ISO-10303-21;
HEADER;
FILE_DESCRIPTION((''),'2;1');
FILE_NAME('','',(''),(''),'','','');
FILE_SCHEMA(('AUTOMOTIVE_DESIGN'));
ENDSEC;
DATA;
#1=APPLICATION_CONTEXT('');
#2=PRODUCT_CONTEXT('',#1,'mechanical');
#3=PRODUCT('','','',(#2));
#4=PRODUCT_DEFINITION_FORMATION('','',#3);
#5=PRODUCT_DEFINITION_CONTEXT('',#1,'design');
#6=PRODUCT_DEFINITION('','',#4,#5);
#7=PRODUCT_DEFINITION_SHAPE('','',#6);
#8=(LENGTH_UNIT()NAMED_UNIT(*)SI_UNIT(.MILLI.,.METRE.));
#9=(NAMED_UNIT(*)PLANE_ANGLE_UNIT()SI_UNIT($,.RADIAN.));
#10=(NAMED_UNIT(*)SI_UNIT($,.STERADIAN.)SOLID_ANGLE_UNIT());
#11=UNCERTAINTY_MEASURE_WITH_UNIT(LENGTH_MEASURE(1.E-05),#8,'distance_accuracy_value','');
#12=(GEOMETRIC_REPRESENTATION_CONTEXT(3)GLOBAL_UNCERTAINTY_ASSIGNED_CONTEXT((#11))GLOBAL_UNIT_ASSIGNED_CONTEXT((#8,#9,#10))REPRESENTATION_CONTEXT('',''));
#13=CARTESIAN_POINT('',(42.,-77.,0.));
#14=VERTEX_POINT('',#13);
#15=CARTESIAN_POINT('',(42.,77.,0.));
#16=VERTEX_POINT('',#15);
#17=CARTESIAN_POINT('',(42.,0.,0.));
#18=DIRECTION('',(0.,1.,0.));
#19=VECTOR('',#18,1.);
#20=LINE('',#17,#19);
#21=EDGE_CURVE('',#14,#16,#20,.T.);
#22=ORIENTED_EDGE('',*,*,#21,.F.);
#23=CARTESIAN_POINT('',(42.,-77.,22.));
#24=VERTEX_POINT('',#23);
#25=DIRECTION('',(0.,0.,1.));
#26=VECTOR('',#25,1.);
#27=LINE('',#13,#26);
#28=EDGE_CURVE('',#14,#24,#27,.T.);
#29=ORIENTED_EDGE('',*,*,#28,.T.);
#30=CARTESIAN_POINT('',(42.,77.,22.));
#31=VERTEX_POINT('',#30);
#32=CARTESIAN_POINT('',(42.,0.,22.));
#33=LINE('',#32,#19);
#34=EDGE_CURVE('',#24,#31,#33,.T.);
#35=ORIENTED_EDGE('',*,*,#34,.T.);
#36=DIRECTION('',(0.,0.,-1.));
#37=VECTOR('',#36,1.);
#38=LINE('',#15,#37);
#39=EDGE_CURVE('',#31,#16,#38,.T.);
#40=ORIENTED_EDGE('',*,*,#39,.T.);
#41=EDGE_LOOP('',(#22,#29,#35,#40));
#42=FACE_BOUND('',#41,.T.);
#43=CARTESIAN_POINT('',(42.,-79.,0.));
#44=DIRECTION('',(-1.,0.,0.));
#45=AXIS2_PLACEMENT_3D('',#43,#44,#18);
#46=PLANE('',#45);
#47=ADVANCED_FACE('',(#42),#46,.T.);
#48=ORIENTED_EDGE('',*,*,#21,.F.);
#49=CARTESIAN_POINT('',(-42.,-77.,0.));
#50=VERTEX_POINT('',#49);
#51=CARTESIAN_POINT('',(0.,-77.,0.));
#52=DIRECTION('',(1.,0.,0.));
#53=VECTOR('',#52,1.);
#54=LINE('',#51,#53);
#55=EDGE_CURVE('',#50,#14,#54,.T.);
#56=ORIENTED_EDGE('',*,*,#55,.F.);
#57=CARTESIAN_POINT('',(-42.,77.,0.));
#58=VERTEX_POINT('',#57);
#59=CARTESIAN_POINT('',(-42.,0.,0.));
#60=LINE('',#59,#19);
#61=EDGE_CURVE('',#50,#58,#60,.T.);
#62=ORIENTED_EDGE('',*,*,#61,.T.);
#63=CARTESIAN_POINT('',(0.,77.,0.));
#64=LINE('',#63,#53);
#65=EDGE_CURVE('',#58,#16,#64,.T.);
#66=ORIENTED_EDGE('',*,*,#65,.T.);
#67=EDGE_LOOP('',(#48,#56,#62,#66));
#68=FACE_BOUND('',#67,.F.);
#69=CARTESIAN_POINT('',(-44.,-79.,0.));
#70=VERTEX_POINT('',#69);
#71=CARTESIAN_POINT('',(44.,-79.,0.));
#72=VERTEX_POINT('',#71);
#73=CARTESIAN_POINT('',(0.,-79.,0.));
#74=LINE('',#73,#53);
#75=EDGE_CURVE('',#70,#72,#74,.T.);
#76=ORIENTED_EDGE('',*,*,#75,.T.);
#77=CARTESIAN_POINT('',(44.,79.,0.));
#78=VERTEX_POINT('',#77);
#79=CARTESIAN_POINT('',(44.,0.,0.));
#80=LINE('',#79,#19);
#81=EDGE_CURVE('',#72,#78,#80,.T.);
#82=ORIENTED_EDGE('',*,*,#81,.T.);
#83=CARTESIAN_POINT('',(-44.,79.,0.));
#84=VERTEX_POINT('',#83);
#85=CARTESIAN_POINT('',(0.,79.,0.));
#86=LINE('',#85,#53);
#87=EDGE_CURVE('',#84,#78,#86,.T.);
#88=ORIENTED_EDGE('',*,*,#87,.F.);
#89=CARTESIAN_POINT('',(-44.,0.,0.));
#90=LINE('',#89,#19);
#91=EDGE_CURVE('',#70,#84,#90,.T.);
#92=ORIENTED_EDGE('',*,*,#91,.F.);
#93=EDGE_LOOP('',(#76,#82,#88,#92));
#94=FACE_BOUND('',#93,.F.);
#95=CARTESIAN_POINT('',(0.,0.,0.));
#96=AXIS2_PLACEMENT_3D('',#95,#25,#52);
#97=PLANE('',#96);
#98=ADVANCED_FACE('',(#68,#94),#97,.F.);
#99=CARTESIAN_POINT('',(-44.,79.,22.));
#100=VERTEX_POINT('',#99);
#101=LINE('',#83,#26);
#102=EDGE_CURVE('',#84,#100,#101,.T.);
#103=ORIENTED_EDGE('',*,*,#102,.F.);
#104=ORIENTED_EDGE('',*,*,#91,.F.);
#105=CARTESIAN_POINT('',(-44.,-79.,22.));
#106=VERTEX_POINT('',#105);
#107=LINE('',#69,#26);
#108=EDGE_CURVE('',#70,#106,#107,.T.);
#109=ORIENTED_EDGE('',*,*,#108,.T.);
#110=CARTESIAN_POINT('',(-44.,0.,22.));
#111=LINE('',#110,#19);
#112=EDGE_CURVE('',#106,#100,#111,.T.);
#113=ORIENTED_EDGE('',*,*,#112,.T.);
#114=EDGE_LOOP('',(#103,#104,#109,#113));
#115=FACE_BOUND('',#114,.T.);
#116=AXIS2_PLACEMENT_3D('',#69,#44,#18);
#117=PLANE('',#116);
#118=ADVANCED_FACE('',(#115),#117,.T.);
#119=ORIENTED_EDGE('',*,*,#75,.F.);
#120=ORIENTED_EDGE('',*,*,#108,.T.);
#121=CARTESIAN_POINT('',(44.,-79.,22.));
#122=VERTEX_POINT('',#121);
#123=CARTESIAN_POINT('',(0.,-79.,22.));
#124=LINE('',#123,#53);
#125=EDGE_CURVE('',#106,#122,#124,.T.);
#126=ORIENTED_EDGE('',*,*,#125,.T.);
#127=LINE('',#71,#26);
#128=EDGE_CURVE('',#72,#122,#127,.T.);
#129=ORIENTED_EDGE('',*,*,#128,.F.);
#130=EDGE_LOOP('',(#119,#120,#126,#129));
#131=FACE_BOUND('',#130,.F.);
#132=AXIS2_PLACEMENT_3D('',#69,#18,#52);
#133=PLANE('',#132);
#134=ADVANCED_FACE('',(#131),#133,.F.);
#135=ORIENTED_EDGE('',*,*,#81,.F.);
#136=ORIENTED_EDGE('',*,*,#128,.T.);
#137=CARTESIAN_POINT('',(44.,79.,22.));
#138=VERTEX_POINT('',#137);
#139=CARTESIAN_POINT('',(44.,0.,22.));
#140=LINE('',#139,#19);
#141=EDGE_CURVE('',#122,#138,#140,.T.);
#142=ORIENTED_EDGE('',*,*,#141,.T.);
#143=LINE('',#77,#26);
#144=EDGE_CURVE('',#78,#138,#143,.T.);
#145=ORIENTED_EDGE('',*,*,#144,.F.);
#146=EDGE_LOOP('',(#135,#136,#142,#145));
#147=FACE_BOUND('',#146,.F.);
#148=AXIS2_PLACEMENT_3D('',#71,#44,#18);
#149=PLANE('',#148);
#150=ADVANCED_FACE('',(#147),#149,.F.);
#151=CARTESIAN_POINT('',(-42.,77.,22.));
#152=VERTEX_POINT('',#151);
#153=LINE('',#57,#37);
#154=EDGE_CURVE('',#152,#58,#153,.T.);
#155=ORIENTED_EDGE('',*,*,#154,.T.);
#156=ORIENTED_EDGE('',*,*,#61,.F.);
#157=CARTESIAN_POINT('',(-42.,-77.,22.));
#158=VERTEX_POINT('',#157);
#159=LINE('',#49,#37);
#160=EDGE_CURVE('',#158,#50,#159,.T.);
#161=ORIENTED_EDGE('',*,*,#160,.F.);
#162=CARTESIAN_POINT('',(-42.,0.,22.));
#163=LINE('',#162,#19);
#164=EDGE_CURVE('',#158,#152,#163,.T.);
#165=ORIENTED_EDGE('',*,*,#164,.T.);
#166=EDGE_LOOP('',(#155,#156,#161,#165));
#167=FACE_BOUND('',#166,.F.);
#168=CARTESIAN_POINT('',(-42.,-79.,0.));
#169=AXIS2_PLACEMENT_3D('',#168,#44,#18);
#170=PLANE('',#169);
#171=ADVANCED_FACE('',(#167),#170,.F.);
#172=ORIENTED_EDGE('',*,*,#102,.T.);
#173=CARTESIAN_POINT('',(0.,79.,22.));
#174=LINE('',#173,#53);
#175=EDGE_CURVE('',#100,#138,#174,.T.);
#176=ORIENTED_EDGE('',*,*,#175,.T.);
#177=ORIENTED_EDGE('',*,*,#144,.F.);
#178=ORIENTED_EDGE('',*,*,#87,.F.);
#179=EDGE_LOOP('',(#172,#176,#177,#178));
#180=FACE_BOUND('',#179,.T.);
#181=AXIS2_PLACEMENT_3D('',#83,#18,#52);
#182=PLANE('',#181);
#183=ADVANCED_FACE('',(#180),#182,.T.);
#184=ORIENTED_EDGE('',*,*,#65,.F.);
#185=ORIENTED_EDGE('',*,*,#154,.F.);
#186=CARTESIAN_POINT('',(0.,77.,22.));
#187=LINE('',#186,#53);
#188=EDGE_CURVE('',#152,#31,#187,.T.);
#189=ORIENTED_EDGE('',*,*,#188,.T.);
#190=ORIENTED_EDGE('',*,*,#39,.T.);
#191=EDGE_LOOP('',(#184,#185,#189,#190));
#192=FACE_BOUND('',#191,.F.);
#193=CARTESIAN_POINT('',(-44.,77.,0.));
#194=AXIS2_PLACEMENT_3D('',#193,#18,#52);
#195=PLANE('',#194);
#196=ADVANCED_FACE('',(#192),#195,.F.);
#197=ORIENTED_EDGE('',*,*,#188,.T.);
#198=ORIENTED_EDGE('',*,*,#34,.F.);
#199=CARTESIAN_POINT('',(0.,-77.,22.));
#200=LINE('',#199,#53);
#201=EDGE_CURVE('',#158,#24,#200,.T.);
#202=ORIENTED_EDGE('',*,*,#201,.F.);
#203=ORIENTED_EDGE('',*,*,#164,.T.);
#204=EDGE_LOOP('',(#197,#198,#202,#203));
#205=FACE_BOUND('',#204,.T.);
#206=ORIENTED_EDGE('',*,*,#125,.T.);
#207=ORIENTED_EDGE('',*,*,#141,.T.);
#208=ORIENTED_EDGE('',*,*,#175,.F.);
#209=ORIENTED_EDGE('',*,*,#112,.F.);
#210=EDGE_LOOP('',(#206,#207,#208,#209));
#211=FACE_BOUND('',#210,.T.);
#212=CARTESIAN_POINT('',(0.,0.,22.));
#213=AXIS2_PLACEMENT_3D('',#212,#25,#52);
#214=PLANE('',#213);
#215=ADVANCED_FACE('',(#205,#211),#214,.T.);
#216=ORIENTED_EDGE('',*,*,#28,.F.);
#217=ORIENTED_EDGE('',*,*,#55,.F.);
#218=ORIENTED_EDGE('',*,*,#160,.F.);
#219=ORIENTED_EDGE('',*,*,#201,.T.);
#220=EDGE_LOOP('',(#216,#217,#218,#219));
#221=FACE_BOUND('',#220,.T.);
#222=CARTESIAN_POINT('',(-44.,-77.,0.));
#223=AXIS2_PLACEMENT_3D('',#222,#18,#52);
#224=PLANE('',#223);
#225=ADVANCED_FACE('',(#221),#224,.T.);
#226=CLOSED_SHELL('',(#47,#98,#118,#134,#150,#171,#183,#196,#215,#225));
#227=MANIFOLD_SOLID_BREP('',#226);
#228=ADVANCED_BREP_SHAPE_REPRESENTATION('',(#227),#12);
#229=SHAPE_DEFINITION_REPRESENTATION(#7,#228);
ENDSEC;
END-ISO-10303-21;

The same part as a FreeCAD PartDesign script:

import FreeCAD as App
import Part
import Sketcher

V = App.Vector
Q = App.Units.Quantity


def faces_at(feature, points):
    """Names of the faces that lie closest to the given points."""
    faces = feature.Shape.Faces
    near = lambda p: min(range(len(faces)), key=lambda i: faces[i].distToShape(Part.Vertex(*p))[0])
    return sorted({f"Face{near(p) + 1}" for p in points})

doc = App.newDocument("Part")
body = doc.addObject("PartDesign::Body", "Body")

# Sketch on XY plane
sketch1 = body.newObject("Sketcher::SketchObject", "Sketch")
sketch1.AttachmentSupport = (doc.getObject("XY_Plane"), [""])
sketch1.MapMode = "FlatFace"
sketch1.addGeometry(Part.LineSegment(V(-44, 79, 0), V(-44, -79, 0)), False)
sketch1.addGeometry(Part.LineSegment(V(-44, -79, 0), V(44, -79, 0)), False)
sketch1.addGeometry(Part.LineSegment(V(44, -79, 0), V(44, 79, 0)), False)
sketch1.addGeometry(Part.LineSegment(V(44, 79, 0), V(-44, 79, 0)), False)
sketch1.addConstraint(Sketcher.Constraint("Coincident", 0, 2, 1, 1))
sketch1.addConstraint(Sketcher.Constraint("Coincident", 1, 2, 2, 1))
sketch1.addConstraint(Sketcher.Constraint("Coincident", 2, 2, 3, 1))
sketch1.addConstraint(Sketcher.Constraint("Coincident", 3, 2, 0, 1))
sketch1.addConstraint(Sketcher.Constraint("Vertical", 0))
sketch1.addConstraint(Sketcher.Constraint("Horizontal", 1))
sketch1.addConstraint(Sketcher.Constraint("Vertical", 2))
sketch1.addConstraint(Sketcher.Constraint("Horizontal", 3))
sketch1.addConstraint(Sketcher.Constraint("Symmetric", 0, 2, 2, 2, -1, 1))
sketch1.addConstraint(Sketcher.Constraint("DistanceX", 1, 1, 1, 2, Q("88 mm")))
sketch1.addConstraint(Sketcher.Constraint("DistanceY", 0, 2, 0, 1, Q("158 mm")))
pad1 = body.newObject("PartDesign::Pad", "Pad")
pad1.Profile = sketch1
pad1.Length = 22
doc.recompute()

thickness = body.newObject("PartDesign::Thickness", "Thickness")
thickness.Base = (pad1, faces_at(pad1, [(0, 0, 22), (0, 0, 0)]))
thickness.Value = 2
thickness.Reversed = True
thickness.Join = "Arc"

doc.recompute()
